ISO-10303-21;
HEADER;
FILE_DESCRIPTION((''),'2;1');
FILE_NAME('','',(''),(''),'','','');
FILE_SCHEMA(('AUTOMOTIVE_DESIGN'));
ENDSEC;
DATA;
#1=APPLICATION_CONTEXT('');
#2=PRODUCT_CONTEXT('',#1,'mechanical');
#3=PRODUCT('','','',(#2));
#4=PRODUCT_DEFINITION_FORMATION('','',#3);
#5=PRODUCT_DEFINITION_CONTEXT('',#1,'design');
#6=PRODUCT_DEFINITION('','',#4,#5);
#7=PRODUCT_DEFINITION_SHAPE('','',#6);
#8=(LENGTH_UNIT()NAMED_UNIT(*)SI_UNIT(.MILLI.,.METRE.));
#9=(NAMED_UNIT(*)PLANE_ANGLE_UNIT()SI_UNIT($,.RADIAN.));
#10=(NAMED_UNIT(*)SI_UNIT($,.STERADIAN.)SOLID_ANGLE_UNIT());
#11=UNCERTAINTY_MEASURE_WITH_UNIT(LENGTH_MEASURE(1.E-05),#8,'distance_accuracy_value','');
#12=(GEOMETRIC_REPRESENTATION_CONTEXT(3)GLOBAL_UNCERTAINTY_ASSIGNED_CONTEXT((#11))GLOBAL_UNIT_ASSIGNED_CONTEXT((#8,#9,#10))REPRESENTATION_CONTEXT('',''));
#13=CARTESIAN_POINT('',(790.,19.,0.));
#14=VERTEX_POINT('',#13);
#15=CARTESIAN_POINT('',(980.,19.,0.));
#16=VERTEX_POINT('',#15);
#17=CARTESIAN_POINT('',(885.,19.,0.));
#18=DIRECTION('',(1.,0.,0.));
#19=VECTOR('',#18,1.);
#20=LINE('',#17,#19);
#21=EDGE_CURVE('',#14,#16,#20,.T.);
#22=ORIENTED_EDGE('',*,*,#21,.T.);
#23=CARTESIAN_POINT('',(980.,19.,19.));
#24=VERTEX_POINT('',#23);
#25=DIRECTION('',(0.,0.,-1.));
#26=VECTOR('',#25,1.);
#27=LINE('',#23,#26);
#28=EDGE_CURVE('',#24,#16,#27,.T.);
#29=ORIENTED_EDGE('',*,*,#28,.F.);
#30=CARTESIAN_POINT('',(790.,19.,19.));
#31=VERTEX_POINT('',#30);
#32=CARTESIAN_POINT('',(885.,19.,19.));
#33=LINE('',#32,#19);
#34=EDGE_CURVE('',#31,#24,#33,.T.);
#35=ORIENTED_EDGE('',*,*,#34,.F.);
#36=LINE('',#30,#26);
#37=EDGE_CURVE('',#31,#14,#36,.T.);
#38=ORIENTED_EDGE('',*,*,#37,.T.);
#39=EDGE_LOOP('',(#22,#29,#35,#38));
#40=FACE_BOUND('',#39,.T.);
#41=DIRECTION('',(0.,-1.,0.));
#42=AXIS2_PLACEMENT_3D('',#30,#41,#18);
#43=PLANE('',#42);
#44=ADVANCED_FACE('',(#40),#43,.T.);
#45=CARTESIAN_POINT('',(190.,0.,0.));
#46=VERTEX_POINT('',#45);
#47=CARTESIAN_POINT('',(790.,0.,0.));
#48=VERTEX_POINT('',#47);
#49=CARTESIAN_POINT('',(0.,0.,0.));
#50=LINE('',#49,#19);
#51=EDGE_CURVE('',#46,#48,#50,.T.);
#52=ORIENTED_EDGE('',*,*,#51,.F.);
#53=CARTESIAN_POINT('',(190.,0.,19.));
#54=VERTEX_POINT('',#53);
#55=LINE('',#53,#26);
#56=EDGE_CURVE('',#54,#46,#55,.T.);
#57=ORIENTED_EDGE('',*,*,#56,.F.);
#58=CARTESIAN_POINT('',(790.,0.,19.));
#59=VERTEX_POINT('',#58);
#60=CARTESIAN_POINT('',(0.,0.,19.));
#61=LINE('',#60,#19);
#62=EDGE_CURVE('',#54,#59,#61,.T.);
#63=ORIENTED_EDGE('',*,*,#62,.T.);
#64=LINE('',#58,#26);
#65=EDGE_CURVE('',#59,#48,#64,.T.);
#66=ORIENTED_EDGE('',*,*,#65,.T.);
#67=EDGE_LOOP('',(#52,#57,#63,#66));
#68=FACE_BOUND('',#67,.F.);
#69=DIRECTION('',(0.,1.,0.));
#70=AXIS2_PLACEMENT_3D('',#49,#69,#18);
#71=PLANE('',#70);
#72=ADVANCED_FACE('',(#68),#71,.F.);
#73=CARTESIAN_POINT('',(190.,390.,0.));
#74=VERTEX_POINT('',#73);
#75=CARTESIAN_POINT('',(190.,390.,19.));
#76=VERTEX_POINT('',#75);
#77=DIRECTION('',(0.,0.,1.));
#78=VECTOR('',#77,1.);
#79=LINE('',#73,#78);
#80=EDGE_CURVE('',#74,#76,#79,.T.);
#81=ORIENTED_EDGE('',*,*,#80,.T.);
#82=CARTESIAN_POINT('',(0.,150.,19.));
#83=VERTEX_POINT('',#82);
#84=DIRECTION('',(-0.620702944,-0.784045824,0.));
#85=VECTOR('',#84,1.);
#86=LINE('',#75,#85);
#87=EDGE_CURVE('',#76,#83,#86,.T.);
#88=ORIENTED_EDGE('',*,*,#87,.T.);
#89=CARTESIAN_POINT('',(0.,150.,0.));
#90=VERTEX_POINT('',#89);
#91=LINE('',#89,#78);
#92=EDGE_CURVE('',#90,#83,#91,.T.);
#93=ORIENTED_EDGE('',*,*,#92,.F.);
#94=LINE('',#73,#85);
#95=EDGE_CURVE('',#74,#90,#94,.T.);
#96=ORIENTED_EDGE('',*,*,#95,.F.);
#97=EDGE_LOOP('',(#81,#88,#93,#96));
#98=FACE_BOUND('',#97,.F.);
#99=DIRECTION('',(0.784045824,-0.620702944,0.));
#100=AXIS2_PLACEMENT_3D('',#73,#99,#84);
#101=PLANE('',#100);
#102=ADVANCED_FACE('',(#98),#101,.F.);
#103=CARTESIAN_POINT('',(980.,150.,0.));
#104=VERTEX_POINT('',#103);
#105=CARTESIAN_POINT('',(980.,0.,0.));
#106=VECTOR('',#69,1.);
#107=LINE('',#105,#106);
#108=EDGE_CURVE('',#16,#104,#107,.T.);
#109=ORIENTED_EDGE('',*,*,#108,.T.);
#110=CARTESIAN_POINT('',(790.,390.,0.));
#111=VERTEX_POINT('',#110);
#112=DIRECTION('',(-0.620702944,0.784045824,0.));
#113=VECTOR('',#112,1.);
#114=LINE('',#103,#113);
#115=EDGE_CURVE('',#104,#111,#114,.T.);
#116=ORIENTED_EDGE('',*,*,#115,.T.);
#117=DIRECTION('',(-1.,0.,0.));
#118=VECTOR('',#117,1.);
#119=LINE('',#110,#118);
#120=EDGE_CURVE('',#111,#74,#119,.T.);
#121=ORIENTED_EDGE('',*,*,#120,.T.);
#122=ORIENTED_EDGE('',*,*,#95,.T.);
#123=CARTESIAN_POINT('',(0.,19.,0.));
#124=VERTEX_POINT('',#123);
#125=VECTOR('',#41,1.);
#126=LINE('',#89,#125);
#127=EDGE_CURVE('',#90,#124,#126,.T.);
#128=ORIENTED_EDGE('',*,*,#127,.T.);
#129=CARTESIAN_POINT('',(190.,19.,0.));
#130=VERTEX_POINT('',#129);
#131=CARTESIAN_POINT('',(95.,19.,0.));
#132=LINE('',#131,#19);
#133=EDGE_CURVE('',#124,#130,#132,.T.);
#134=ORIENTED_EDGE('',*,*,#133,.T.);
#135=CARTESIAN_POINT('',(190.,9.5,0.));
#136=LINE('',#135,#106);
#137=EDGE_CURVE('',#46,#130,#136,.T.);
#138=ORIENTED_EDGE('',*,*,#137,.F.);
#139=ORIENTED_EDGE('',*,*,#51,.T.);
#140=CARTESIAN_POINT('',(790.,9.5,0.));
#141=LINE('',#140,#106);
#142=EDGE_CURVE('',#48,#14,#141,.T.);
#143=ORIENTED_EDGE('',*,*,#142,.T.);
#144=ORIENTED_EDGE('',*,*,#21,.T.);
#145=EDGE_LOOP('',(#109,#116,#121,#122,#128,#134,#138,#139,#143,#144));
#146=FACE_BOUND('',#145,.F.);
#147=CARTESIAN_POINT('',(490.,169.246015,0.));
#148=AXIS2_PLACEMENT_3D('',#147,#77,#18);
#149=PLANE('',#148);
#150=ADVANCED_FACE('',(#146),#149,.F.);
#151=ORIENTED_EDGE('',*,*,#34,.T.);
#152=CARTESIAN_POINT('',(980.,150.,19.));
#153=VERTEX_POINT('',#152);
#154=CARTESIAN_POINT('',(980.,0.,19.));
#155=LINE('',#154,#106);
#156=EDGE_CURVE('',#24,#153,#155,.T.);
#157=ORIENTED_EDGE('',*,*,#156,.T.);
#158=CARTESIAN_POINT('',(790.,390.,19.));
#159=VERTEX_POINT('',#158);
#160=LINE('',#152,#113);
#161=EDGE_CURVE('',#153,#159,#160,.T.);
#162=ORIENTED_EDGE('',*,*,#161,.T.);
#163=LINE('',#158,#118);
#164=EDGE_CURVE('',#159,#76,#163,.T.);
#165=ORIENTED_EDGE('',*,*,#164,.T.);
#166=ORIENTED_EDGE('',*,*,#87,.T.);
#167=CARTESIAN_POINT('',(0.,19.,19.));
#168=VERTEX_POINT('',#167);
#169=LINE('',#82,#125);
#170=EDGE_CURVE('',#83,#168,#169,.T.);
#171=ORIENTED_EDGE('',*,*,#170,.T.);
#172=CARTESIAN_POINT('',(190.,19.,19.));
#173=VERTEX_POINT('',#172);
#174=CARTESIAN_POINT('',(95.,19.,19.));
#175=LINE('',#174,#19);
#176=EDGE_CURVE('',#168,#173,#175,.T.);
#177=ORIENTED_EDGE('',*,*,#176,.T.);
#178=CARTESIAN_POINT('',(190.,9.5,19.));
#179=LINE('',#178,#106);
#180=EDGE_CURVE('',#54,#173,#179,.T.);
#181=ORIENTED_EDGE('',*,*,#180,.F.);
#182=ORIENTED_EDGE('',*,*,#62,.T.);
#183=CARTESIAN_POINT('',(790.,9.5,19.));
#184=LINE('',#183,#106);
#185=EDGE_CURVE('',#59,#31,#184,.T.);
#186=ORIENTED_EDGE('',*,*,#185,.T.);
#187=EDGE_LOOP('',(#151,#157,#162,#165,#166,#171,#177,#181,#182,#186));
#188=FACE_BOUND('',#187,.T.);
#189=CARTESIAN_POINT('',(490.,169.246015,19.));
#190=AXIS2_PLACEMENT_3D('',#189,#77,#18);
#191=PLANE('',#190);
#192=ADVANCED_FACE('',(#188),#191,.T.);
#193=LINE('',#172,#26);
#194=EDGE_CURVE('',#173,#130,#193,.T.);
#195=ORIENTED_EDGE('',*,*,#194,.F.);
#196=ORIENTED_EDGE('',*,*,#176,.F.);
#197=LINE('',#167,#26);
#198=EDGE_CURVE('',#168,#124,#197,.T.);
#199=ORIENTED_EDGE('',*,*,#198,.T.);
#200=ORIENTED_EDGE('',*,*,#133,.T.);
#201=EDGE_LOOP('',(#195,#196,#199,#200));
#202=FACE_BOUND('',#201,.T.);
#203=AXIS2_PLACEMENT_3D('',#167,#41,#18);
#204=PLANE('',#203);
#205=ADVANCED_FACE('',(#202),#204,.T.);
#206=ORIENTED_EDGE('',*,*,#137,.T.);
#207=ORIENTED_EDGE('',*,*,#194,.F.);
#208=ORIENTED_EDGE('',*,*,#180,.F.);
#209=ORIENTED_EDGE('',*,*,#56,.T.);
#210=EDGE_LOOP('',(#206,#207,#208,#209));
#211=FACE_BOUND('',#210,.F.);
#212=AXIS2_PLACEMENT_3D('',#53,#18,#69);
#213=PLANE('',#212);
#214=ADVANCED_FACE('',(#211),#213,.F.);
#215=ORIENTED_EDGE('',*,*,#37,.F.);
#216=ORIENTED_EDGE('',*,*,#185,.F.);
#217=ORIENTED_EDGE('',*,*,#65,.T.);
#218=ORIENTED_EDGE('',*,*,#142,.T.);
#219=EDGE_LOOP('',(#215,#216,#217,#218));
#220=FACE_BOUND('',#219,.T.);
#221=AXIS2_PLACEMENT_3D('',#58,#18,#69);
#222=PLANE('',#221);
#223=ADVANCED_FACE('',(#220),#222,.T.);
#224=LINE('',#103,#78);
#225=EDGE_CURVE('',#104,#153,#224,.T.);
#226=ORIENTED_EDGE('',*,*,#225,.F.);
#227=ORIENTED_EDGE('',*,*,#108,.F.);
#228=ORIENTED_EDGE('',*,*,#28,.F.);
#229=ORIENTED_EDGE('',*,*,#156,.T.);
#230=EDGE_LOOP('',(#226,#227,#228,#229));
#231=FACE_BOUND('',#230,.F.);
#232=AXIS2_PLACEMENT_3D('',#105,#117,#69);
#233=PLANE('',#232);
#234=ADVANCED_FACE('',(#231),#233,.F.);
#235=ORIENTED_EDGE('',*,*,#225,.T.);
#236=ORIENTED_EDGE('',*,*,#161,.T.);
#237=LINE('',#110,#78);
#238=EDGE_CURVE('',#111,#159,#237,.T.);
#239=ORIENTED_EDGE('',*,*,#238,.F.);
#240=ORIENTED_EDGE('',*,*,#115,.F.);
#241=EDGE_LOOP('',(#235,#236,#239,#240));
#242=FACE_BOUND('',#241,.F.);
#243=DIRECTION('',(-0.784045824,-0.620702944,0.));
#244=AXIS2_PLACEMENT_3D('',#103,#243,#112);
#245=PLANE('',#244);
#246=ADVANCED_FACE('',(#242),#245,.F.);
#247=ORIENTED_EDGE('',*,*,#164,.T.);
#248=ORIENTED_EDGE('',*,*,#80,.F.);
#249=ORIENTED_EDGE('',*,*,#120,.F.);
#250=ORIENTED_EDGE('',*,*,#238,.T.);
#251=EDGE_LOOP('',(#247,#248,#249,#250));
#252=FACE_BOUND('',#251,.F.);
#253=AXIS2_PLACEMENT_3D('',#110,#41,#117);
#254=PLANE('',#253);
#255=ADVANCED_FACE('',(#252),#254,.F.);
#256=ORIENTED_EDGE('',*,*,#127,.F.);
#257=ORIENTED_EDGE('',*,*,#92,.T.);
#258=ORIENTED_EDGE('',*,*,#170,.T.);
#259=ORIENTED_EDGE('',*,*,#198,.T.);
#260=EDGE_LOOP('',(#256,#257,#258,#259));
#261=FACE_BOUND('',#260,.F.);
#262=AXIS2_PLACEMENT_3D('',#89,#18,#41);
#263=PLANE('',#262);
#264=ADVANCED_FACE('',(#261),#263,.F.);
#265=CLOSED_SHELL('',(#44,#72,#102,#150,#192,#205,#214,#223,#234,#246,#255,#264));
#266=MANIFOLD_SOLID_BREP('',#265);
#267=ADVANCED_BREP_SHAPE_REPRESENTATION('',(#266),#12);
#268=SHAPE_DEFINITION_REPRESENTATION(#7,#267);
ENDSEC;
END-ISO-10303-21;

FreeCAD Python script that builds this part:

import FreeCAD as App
import Part
import Sketcher

V = App.Vector
Q = App.Units.Quantity

doc = App.newDocument("Part")
body = doc.addObject("PartDesign::Body", "Body")

sketch1 = body.newObject("Sketcher::SketchObject", "Sketch")
sketch1.AttachmentSupport = (doc.getObject("XY_Plane"), [""])
sketch1.MapMode = "FlatFace"
sketch1.addGeometry([
    Part.LineSegment(V(0, 150, 0), V(0, 0, 0)),
    Part.LineSegment(V(0, 0, 0), V(980, 0, 0)),
    Part.LineSegment(V(980, 0, 0), V(980, 150, 0)),
    Part.LineSegment(V(980, 150, 0), V(790, 390, 0)),
    Part.LineSegment(V(790, 390, 0), V(190, 390, 0)),
    Part.LineSegment(V(190, 390, 0), V(0, 150, 0)),
], False)
sketch1.addConstraint([
    Sketcher.Constraint("Coincident", 0, 2, 1, 1),
    Sketcher.Constraint("Coincident", 1, 2, 2, 1),
    Sketcher.Constraint("Coincident", 2, 2, 3, 1),
    Sketcher.Constraint("Coincident", 3, 2, 4, 1),
    Sketcher.Constraint("Coincident", 4, 2, 5, 1),
    Sketcher.Constraint("Coincident", 5, 2, 0, 1),
    Sketcher.Constraint("Vertical", 0),
    Sketcher.Constraint("Horizontal", 1),
    Sketcher.Constraint("Vertical", 2),
    Sketcher.Constraint("Horizontal", 4),
    Sketcher.Constraint("Coincident", 0, 2, -1, 1),
    Sketcher.Constraint("Horizontal", 2, 2, 5, 2),
    Sketcher.Constraint("Equal", 3, 5),
    Sketcher.Constraint("DistanceX", 1, 1, 1, 2, Q("980 mm")),
    Sketcher.Constraint("DistanceX", 4, 2, 4, 1, Q("600 mm")),
    Sketcher.Constraint("DistanceY", 0, 2, 0, 1, Q("150 mm")),
    Sketcher.Constraint("DistanceY", -1, 1, 3, 2, Q("390 mm")),
])
pad1 = body.newObject("PartDesign::Pad", "Pad")
pad1.Profile = sketch1
pad1.Length = 19

sketch2 = body.newObject("Sketcher::SketchObject", "Sketch001")
sketch2.AttachmentSupport = (doc.getObject("XY_Plane"), [""])
sketch2.MapMode = "FlatFace"
sketch2.AttachmentOffset = App.Placement(V(0, 0, 19), App.Rotation())
sketch2.addGeometry([
    Part.LineSegment(V(0, 19, 0), V(0, 0, 0)),
    Part.LineSegment(V(0, 0, 0), V(190, 0, 0)),
    Part.LineSegment(V(190, 0, 0), V(190, 19, 0)),
    Part.LineSegment(V(190, 19, 0), V(0, 19, 0)),
], False)
sketch2.addConstraint([
    Sketcher.Constraint("Coincident", 0, 2, 1, 1),
    Sketcher.Constraint("Coincident", 1, 2, 2, 1),
    Sketcher.Constraint("Coincident", 2, 2, 3, 1),
    Sketcher.Constraint("Coincident", 3, 2, 0, 1),
    Sketcher.Constraint("Vertical", 0),
    Sketcher.Constraint("Horizontal", 1),
    Sketcher.Constraint("Vertical", 2),
    Sketcher.Constraint("Horizontal", 3),
    Sketcher.Constraint("Coincident", 0, 2, -1, 1),
    Sketcher.Constraint("DistanceX", 1, 1, 1, 2, Q("190 mm")),
    Sketcher.Constraint("DistanceY", 0, 2, 0, 1, Q("19 mm")),
])
pocket1 = body.newObject("PartDesign::Pocket", "Pocket")
pocket1.Profile = sketch2
pocket1.Length = 19

sketch3 = body.newObject("Sketcher::SketchObject", "Sketch002")
sketch3.AttachmentSupport = (doc.getObject("XY_Plane"), [""])
sketch3.MapMode = "FlatFace"
sketch3.AttachmentOffset = App.Placement(V(0, 0, 19), App.Rotation())
sketch3.addGeometry([
    Part.LineSegment(V(790, 19, 0), V(790, 0, 0)),
    Part.LineSegment(V(790, 0, 0), V(980, 0, 0)),
    Part.LineSegment(V(980, 0, 0), V(980, 19, 0)),
    Part.LineSegment(V(980, 19, 0), V(790, 19, 0)),
], False)
sketch3.addConstraint([
    Sketcher.Constraint("Coincident", 0, 2, 1, 1),
    Sketcher.Constraint("Coincident", 1, 2, 2, 1),
    Sketcher.Constraint("Coincident", 2, 2, 3, 1),
    Sketcher.Constraint("Coincident", 3, 2, 0, 1),
    Sketcher.Constraint("Vertical", 0),
    Sketcher.Constraint("Horizontal", 1),
    Sketcher.Constraint("Vertical", 2),
    Sketcher.Constraint("Horizontal", 3),
    Sketcher.Constraint("PointOnObject", 0, 2, -1),
    Sketcher.Constraint("DistanceX", 1, 1, 1, 2, Q("190 mm")),
    Sketcher.Constraint("DistanceY", 0, 2, 0, 1, Q("19 mm")),
    Sketcher.Constraint("DistanceX", -1, 1, 0, 2, Q("790 mm")),
])
pocket2 = body.newObject("PartDesign::Pocket", "Pocket001")
pocket2.Profile = sketch3
pocket2.Length = 19

doc.recompute()
